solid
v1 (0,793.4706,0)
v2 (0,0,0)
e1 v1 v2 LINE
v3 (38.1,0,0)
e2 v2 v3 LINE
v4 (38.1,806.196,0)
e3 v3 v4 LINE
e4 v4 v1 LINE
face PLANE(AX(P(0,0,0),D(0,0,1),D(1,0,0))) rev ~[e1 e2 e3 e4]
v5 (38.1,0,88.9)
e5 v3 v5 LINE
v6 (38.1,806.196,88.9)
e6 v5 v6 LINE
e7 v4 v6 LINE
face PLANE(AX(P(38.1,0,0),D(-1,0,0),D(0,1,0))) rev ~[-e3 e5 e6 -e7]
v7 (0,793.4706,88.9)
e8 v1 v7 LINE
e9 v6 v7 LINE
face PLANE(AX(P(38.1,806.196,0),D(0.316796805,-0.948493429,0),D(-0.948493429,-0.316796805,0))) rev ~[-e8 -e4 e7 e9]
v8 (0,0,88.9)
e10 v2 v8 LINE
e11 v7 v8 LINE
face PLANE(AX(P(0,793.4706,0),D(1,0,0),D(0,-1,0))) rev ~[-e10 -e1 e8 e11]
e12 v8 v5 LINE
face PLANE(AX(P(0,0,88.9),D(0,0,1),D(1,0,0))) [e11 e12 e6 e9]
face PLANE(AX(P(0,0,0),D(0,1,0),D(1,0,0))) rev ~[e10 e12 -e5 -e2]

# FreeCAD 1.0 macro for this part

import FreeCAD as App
import Part
import Sketcher
from FreeCAD import Vector
Q = App.Units.Quantity


def add_polygon(sketch, points):
    """Adds a closed chain of lines whose ends are joined by coincident constraints."""
    first, n = sketch.GeometryCount, len(points)
    for a, b in zip(points, points[1:] + points[:1]):
        sketch.addGeometry(Part.LineSegment(App.Vector(*a, 0), App.Vector(*b, 0)), False)
    for i in range(n):
        sketch.addConstraint(Sketcher.Constraint("Coincident", first + i, 2, first + (i + 1) % n, 1))

doc = App.newDocument("Part")
params = doc.addObject("Spreadsheet::Sheet", "Params")
for row, (alias, value) in enumerate([
    ("sketch1_width", "1.5 in"),
    ("sketch1_height", "31.74 in"),
    ("sketch1_height2", "31.239 in"),
    ("pad1_length", "3.5 in"),
], start=1):
    params.set(f"A{row}", alias)
    params.set(f"B{row}", "=" + value)
    params.setAlias(f"B{row}", alias)

body = doc.addObject("PartDesign::Body", "Body")

sketch1 = body.newObject("Sketcher::SketchObject", "Sketch")
sketch1.AttachmentSupport = (doc.getObject("XY_Plane"), [""])
sketch1.MapMode = "FlatFace"
add_polygon(sketch1, [(0, 793), (0, 0), (38, 0), (38, 806)])
sketch1.addConstraint(Sketcher.Constraint("Vertical", 0))
sketch1.addConstraint(Sketcher.Constraint("Horizontal", 1))
sketch1.addConstraint(Sketcher.Constraint("Vertical", 2))
sketch1.addConstraint(Sketcher.Constraint("Coincident", 0, 2, -1, 1))
sketch1.addConstraint(Sketcher.Constraint("DistanceX", 1, 1, 1, 2, Q("1.5 in")))
sketch1.addConstraint(Sketcher.Constraint("DistanceY", 2, 1, 2, 2, Q("31.74 in")))
sketch1.addConstraint(Sketcher.Constraint("DistanceY", 0, 2, 0, 1, Q("31.239 in")))
sketch1.setExpression("Constraints[8]", "Params.sketch1_width")
sketch1.setExpression("Constraints[9]", "Params.sketch1_height")
sketch1.setExpression("Constraints[10]", "Params.sketch1_height2")
pad1 = body.newObject("PartDesign::Pad", "Pad")
pad1.Profile = sketch1
pad1.setExpression("Length", "Params.pad1_length")

doc.recompute()
